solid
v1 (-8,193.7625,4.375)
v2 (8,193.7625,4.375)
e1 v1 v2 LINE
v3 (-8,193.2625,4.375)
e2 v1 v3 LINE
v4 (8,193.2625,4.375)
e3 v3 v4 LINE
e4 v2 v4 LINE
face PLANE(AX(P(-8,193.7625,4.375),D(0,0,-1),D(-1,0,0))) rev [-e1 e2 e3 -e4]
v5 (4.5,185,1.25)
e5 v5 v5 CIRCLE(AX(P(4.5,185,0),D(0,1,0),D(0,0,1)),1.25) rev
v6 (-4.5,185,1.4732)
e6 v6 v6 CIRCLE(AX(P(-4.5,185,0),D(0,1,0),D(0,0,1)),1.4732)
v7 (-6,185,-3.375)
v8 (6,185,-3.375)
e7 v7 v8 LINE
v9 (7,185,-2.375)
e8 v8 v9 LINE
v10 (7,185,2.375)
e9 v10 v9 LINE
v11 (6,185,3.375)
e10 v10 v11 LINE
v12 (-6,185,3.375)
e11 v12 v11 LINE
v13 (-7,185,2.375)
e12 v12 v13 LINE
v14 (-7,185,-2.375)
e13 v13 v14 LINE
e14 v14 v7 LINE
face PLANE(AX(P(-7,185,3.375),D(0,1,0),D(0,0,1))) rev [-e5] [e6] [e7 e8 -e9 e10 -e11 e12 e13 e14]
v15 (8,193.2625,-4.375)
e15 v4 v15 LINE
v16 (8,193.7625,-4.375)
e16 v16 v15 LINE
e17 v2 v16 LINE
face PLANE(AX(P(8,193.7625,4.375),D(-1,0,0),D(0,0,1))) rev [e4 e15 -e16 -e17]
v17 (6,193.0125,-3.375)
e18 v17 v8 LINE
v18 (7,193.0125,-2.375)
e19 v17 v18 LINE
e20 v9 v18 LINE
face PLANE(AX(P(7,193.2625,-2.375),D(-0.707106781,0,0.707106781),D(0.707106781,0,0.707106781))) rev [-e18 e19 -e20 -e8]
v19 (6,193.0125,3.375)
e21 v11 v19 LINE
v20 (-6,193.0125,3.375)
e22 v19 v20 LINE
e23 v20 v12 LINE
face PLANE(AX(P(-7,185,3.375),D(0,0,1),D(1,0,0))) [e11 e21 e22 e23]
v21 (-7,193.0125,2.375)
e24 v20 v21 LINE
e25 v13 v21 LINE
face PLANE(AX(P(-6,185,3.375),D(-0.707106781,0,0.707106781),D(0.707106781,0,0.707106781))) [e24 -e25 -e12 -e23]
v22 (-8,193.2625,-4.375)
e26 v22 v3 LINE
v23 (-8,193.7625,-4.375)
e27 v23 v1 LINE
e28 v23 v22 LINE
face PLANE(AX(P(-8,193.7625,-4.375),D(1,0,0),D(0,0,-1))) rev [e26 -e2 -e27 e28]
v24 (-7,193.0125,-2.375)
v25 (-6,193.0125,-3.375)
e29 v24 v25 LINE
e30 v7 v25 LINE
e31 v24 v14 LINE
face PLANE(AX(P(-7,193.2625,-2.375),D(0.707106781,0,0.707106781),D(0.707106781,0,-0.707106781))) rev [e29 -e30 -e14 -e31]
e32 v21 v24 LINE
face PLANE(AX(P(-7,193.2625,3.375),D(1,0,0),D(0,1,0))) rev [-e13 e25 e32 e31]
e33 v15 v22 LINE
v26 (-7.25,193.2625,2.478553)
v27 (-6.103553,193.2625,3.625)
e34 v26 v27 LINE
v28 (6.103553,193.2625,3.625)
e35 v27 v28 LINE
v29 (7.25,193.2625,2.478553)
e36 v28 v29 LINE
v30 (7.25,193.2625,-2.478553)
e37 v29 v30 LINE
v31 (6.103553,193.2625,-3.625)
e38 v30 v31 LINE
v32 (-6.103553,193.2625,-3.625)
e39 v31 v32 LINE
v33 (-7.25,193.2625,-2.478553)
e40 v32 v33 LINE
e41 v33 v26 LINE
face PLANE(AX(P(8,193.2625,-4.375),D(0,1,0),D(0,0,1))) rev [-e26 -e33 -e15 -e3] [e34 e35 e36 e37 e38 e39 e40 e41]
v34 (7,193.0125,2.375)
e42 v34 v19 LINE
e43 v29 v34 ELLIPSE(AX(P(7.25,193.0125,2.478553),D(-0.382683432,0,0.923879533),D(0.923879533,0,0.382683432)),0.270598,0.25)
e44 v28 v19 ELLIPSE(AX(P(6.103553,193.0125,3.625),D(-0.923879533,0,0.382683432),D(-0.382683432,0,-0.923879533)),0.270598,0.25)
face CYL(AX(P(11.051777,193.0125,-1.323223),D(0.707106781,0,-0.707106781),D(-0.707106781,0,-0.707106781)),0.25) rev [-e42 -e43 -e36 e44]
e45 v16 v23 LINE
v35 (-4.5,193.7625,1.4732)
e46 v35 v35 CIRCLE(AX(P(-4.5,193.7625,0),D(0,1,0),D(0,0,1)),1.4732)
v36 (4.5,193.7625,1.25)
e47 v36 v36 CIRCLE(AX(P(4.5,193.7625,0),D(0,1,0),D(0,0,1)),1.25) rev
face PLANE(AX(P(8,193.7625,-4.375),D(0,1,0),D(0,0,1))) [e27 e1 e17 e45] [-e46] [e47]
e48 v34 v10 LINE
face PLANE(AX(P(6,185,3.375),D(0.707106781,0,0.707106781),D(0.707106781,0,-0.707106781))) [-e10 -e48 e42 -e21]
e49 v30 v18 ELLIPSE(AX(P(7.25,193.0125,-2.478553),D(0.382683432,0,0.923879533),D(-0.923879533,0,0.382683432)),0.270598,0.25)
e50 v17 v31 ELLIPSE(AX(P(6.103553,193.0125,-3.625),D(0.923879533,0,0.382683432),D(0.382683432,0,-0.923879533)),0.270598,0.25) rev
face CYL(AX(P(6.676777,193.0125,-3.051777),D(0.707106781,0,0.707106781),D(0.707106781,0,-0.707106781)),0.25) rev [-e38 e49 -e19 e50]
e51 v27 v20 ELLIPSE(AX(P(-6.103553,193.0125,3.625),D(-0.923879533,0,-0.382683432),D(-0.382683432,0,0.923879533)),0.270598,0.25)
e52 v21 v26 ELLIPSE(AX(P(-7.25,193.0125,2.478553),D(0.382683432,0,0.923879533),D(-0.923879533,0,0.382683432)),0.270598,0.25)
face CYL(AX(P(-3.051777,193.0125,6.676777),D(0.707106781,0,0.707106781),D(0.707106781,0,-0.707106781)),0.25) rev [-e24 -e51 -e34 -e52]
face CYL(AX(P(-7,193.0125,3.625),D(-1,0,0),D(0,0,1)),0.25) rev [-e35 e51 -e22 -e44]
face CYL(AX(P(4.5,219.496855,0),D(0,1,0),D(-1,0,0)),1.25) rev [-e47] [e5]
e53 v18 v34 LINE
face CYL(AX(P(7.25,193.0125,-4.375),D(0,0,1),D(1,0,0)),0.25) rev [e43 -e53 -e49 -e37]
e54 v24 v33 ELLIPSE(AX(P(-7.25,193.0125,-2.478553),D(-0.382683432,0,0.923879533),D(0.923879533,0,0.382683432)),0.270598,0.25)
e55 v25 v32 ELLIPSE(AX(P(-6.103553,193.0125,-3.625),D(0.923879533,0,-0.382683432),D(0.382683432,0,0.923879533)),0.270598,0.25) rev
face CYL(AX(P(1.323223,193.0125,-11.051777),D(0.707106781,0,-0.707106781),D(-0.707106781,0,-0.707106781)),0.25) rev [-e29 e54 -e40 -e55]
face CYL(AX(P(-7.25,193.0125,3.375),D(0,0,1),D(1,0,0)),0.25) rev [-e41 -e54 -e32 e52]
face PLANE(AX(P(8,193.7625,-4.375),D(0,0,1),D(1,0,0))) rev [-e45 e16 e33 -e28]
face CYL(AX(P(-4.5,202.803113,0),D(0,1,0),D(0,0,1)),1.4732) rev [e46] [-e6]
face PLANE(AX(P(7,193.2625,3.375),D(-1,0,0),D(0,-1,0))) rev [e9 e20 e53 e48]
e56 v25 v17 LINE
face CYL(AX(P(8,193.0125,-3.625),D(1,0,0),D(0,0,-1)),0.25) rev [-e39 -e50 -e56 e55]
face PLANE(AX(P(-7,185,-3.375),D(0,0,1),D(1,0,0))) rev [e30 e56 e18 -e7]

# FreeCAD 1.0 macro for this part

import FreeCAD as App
import Part
import Sketcher


def edges_at(feature, points):
    """Names of the edges that pass closest to the given points."""
    edges = feature.Shape.Edges
    near = lambda p: min(range(len(edges)), key=lambda i: edges[i].distToShape(Part.Vertex(*p))[0])
    return sorted({f"Edge{near(p) + 1}" for p in points})

doc = App.newDocument("Part")
body = doc.addObject("PartDesign::Body", "Body")

# Sketch on XY plane
sketch1 = body.newObject("Sketcher::SketchObject", "Sketch")
sketch1.AttachmentSupport = (doc.getObject("XY_Plane"), [""])
sketch1.MapMode = "FlatFace"
sketch1.addGeometry(Part.LineSegment(App.Vector(-7, 193.2625, 0), App.Vector(-7, 185, 0)), False)
sketch1.addGeometry(Part.LineSegment(App.Vector(-7, 185, 0), App.Vector(7, 185, 0)), False)
sketch1.addGeometry(Part.LineSegment(App.Vector(7, 185, 0), App.Vector(7, 193.2625, 0)), False)
sketch1.addGeometry(Part.LineSegment(App.Vector(7, 193.2625, 0), App.Vector(-7, 193.2625, 0)), False)
sketch1.addConstraint(Sketcher.Constraint("Coincident", 0, 2, 1, 1))
sketch1.addConstraint(Sketcher.Constraint("Coincident", 1, 2, 2, 1))
sketch1.addConstraint(Sketcher.Constraint("Coincident", 2, 2, 3, 1))
sketch1.addConstraint(Sketcher.Constraint("Coincident", 3, 2, 0, 1))
sketch1.addConstraint(Sketcher.Constraint("Vertical", 0))
sketch1.addConstraint(Sketcher.Constraint("Horizontal", 1))
sketch1.addConstraint(Sketcher.Constraint("Vertical", 2))
sketch1.addConstraint(Sketcher.Constraint("Horizontal", 3))
sketch1.addConstraint(Sketcher.Constraint("DistanceX", 1, 1, 1, 2, 14.0))
sketch1.addConstraint(Sketcher.Constraint("DistanceX", 0, 2, -1, 1, 7.0))
sketch1.addConstraint(Sketcher.Constraint("DistanceY", -1, 1, 0, 2, 185.0))
sketch1.addConstraint(Sketcher.Constraint("DistanceY", 0, 2, 0, 1, 8.2625))
pad1 = body.newObject("PartDesign::Pad", "Pad")
pad1.Profile = sketch1
pad1.Length = 6.75
pad1.Midplane = True

# Sketch on XZ plane
sketch2 = body.newObject("Sketcher::SketchObject", "Sketch001")
sketch2.AttachmentSupport = (doc.getObject("XZ_Plane"), [""])
sketch2.MapMode = "FlatFace"
sketch2.AttachmentOffset = App.Placement(App.Vector(0, 0, -193.2625), App.Rotation())
sketch2.addGeometry(Part.LineSegment(App.Vector(-8, -4.375, 0), App.Vector(-8, 4.375, 0)), False)
sketch2.addGeometry(Part.LineSegment(App.Vector(-8, 4.375, 0), App.Vector(8, 4.375, 0)), False)
sketch2.addGeometry(Part.LineSegment(App.Vector(8, 4.375, 0), App.Vector(8, -4.375, 0)), False)
sketch2.addGeometry(Part.LineSegment(App.Vector(8, -4.375, 0), App.Vector(-8, -4.375, 0)), False)
sketch2.addConstraint(Sketcher.Constraint("Coincident", 0, 2, 1, 1))
sketch2.addConstraint(Sketcher.Constraint("Coincident", 1, 2, 2, 1))
sketch2.addConstraint(Sketcher.Constraint("Coincident", 2, 2, 3, 1))
sketch2.addConstraint(Sketcher.Constraint("Coincident", 3, 2, 0, 1))
sketch2.addConstraint(Sketcher.Constraint("Vertical", 0))
sketch2.addConstraint(Sketcher.Constraint("Horizontal", 1))
sketch2.addConstraint(Sketcher.Constraint("Vertical", 2))
sketch2.addConstraint(Sketcher.Constraint("Horizontal", 3))
sketch2.addConstraint(Sketcher.Constraint("Symmetric", 0, 2, 2, 2, -1, 1))
sketch2.addConstraint(Sketcher.Constraint("DistanceX", 1, 1, 1, 2, 16.0))
sketch2.addConstraint(Sketcher.Constraint("DistanceY", 0, 1, 0, 2, 8.75))
pad2 = body.newObject("PartDesign::Pad", "Pad001")
pad2.Profile = sketch2
pad2.Length = 0.5
pad2.Reversed = True

# Sketch on XY plane
sketch3 = body.newObject("Sketcher::SketchObject", "Sketch002")
sketch3.AttachmentSupport = (doc.getObject("XY_Plane"), [""])
sketch3.MapMode = "FlatFace"
sketch3.addGeometry(Part.LineSegment(App.Vector(-4.5, 181.494297, 0), App.Vector(-4.5, 196.001342, 0)), False)
sketch3.addGeometry(Part.LineSegment(App.Vector(-4.5, 196.001342, 0), App.Vector(-3.0268, 196.001342, 0)), False)
sketch3.addGeometry(Part.LineSegment(App.Vector(-3.0268, 196.001342, 0), App.Vector(-3.0268, 181.494297, 0)), False)
sketch3.addGeometry(Part.LineSegment(App.Vector(-3.0268, 181.494297, 0), App.Vector(-4.5, 181.494297, 0)), False)
sketch3.addGeometry(Part.LineSegment(App.Vector(-4.5, 196.001342, 0), App.Vector(-4.5, 181.494297, 0)), True)  # axis
sketch3.addConstraint(Sketcher.Constraint("Coincident", 0, 2, 1, 1))
sketch3.addConstraint(Sketcher.Constraint("Coincident", 1, 2, 2, 1))
sketch3.addConstraint(Sketcher.Constraint("Coincident", 2, 2, 3, 1))
sketch3.addConstraint(Sketcher.Constraint("Coincident", 3, 2, 0, 1))
sketch3.addConstraint(Sketcher.Constraint("Vertical", 0))
sketch3.addConstraint(Sketcher.Constraint("Horizontal", 1))
sketch3.addConstraint(Sketcher.Constraint("Vertical", 2))
sketch3.addConstraint(Sketcher.Constraint("Horizontal", 3))
sketch3.addConstraint(Sketcher.Constraint("Vertical", 4))
sketch3.addConstraint(Sketcher.Constraint("Coincident", 4, 1, 0, 2))
sketch3.addConstraint(Sketcher.Constraint("Horizontal", 2, 2, 4, 2))
sketch3.addConstraint(Sketcher.Constraint("DistanceX", 0, 2, -1, 1, 4.5))
sketch3.addConstraint(Sketcher.Constraint("DistanceX", 1, 1, 1, 2, 1.4732))
sketch3.addConstraint(Sketcher.Constraint("DistanceY", 0, 1, 0, 2, 14.507045))
sketch3.addConstraint(Sketcher.Constraint("DistanceY", -1, 1, 0, 2, 196.001342))
groove = body.newObject("PartDesign::Groove", "Groove")
groove.Profile = sketch3
groove.ReferenceAxis = (sketch3, ["Axis0"])
groove.Angle = 360

# Sketch on XY plane
sketch4 = body.newObject("Sketcher::SketchObject", "Sketch003")
sketch4.AttachmentSupport = (doc.getObject("XY_Plane"), [""])
sketch4.MapMode = "FlatFace"
sketch4.addGeometry(Part.LineSegment(App.Vector(4.5, 196.074655, 0), App.Vector(4.5, 176.074655, 0)), False)
sketch4.addGeometry(Part.LineSegment(App.Vector(4.5, 176.074655, 0), App.Vector(5.75, 176.074655, 0)), False)
sketch4.addGeometry(Part.LineSegment(App.Vector(5.75, 176.074655, 0), App.Vector(5.75, 196.074655, 0)), False)
sketch4.addGeometry(Part.LineSegment(App.Vector(5.75, 196.074655, 0), App.Vector(4.5, 196.074655, 0)), False)
sketch4.addGeometry(Part.LineSegment(App.Vector(4.5, 196.074655, 0), App.Vector(4.5, 176.074655, 0)), True)  # axis
sketch4.addConstraint(Sketcher.Constraint("Coincident", 0, 2, 1, 1))
sketch4.addConstraint(Sketcher.Constraint("Coincident", 1, 2, 2, 1))
sketch4.addConstraint(Sketcher.Constraint("Coincident", 2, 2, 3, 1))
sketch4.addConstraint(Sketcher.Constraint("Coincident", 3, 2, 0, 1))
sketch4.addConstraint(Sketcher.Constraint("Vertical", 0))
sketch4.addConstraint(Sketcher.Constraint("Horizontal", 1))
sketch4.addConstraint(Sketcher.Constraint("Vertical", 2))
sketch4.addConstraint(Sketcher.Constraint("Horizontal", 3))
sketch4.addConstraint(Sketcher.Constraint("Vertical", 4))
sketch4.addConstraint(Sketcher.Constraint("Coincident", 4, 1, 3, 2))
sketch4.addConstraint(Sketcher.Constraint("Horizontal", 1, 2, 4, 2))
sketch4.addConstraint(Sketcher.Constraint("DistanceY", 0, 2, 0, 1, 20.0))
sketch4.addConstraint(Sketcher.Constraint("DistanceX", 1, 1, 1, 2, 1.25))
sketch4.addConstraint(Sketcher.Constraint("DistanceX", -1, 1, 0, 2, 4.5))
sketch4.addConstraint(Sketcher.Constraint("DistanceY", -1, 1, 0, 2, 176.074655))
groove2 = body.newObject("PartDesign::Groove", "Groove001")
groove2.Profile = sketch4
groove2.ReferenceAxis = (sketch4, ["Axis0"])
groove2.Angle = 360
doc.recompute()

chamfer = body.newObject("PartDesign::Chamfer", "Chamfer")
chamfer.Base = (groove2, edges_at(groove2, [
    (7, 189.131, 3.375),
    (-7, 189.131, 3.375),
    (7, 189.131, -3.375),
    (-7, 189.131, -3.375),
]))
chamfer.Size = 1
doc.recompute()

fillet = body.newObject("PartDesign::Fillet", "Fillet")
fillet.Base = (chamfer, edges_at(chamfer, [
    (-7, 193.262, 0),
    (0, 193.262, -3.375),
    (7, 193.262, 0),
    (0, 193.262, 3.375),
    (-6.5, 193.262, -2.875),
    (6.5, 193.262, -2.875),
    (6.5, 193.262, 2.875),
    (-6.5, 193.262, 2.875),
]))
fillet.Radius = 0.25

doc.recompute()
